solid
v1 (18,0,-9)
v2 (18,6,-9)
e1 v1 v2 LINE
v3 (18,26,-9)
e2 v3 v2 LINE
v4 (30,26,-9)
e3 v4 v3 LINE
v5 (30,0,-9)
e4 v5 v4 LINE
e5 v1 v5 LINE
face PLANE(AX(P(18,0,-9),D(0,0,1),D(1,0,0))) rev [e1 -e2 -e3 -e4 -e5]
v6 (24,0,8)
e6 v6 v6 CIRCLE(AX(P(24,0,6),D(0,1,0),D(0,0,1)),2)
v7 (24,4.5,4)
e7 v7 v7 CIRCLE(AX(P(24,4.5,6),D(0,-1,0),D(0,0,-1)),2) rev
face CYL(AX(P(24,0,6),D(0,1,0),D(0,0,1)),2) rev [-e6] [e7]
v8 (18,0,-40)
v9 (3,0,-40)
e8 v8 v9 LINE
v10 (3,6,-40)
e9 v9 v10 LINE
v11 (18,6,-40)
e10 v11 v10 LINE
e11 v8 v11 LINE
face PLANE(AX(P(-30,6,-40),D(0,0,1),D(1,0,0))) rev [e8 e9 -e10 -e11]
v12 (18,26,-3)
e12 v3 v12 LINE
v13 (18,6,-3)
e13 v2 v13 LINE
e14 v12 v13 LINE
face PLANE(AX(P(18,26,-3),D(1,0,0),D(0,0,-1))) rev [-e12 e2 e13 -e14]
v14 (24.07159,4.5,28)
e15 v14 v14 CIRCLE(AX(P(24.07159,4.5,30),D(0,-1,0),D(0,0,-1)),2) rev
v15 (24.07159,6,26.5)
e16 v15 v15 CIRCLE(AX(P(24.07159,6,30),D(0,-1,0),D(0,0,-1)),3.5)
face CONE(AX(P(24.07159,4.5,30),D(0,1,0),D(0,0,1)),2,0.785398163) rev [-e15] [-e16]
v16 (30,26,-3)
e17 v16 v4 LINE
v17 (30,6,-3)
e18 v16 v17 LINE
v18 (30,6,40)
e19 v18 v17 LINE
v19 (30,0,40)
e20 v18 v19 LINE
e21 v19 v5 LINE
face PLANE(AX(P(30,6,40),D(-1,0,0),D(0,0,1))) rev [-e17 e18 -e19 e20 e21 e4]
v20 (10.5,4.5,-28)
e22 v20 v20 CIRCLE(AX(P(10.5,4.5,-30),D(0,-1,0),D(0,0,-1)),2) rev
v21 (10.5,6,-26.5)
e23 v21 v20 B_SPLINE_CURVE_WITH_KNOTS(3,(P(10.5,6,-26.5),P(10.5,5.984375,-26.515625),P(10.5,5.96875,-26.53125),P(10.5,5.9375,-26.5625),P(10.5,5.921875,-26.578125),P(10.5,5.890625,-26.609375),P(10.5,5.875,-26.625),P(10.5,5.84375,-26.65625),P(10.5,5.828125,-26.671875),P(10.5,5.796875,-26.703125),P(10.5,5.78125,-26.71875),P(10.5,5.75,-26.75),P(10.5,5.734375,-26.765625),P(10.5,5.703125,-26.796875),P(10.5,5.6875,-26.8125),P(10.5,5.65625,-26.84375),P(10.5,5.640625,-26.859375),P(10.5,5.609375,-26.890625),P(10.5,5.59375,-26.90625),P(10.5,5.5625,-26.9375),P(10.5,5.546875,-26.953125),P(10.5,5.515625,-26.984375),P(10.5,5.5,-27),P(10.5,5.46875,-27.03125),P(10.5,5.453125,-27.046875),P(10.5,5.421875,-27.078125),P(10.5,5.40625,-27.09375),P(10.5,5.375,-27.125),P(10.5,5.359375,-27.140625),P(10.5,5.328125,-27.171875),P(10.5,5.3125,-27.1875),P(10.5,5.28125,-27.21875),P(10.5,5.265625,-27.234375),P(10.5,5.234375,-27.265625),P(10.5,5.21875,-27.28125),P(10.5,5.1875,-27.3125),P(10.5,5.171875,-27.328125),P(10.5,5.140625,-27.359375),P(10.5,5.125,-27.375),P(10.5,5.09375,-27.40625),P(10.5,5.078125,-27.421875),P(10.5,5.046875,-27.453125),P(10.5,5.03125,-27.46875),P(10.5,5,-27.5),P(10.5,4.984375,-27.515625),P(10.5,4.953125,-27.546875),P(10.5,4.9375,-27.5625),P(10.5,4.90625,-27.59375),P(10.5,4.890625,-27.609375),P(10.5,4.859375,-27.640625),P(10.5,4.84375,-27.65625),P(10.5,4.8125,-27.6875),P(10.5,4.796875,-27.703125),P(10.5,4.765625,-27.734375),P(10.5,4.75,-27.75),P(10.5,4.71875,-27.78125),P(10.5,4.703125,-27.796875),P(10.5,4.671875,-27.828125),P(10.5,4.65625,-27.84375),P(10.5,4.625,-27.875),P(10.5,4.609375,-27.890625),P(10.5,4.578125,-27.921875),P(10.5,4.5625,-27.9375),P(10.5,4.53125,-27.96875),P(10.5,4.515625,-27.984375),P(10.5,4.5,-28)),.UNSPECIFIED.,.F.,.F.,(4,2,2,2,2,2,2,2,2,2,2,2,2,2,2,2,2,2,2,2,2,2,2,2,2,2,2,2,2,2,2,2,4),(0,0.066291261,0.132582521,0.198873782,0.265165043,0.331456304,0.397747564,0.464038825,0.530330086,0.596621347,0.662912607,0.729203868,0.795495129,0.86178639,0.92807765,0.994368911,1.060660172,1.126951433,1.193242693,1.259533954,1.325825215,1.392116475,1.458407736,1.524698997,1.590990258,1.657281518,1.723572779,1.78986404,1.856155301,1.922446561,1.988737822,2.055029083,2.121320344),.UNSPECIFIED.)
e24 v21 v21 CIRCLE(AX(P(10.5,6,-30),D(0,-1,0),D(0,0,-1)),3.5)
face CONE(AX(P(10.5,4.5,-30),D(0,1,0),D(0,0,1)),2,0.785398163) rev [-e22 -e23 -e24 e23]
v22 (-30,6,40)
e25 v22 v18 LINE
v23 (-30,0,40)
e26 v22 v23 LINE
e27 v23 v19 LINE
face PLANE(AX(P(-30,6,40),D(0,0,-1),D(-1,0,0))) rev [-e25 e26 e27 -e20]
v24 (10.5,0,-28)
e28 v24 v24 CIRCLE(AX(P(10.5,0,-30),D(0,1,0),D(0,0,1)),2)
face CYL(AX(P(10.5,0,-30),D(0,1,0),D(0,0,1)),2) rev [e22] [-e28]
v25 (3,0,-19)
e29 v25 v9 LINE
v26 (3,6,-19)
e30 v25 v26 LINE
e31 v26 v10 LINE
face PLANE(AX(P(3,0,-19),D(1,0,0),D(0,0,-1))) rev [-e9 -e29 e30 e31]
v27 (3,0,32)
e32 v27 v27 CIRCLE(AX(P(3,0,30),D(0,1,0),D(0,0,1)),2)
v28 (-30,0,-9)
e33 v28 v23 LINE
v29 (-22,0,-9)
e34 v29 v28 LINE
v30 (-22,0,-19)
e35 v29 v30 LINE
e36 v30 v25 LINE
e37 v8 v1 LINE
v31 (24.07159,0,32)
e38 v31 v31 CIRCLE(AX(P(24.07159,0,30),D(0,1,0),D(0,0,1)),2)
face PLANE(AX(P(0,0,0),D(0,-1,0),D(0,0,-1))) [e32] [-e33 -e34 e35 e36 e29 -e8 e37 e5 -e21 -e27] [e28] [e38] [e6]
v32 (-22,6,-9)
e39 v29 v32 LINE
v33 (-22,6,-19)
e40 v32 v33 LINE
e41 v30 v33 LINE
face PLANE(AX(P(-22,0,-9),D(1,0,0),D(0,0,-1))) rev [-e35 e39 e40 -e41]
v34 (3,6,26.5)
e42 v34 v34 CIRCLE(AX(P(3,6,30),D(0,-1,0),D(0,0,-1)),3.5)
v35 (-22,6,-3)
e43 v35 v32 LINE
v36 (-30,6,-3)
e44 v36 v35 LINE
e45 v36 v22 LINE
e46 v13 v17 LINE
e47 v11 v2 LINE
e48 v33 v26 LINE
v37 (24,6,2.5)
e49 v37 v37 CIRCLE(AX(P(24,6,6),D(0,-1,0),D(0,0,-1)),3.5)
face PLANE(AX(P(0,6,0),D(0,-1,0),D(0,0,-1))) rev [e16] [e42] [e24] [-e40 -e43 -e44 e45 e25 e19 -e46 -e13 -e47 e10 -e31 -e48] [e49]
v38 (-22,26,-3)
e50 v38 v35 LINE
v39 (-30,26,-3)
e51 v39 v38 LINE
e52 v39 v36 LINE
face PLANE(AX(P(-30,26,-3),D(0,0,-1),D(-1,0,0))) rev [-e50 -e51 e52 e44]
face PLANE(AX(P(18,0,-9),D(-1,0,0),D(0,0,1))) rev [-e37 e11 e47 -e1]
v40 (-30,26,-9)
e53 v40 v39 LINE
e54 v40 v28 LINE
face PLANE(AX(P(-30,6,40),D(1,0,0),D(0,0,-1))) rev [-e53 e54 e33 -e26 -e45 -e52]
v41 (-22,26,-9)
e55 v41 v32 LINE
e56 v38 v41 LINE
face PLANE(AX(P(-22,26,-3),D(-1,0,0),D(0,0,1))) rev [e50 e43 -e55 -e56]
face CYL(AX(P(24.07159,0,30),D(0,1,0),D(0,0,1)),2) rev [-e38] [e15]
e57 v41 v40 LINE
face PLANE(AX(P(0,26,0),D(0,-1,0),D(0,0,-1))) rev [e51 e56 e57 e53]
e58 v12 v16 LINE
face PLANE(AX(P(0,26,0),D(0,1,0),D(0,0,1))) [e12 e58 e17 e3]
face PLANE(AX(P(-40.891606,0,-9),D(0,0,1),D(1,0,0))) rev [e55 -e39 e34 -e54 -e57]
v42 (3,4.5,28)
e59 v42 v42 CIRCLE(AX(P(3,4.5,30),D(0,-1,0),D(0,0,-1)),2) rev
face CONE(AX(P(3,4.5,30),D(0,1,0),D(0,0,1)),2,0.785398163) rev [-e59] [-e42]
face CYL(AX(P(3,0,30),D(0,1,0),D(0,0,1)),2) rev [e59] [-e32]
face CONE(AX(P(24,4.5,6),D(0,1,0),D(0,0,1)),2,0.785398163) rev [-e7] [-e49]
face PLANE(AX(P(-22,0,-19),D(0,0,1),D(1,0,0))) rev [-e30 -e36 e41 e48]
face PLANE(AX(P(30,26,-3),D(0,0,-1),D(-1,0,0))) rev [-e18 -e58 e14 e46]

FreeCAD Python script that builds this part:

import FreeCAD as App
import Part
import Sketcher
from FreeCAD import Vector


def edges_at(feature, points):
    """Names of the edges that pass closest to the given points."""
    edges = feature.Shape.Edges
    near = lambda p: min(range(len(edges)), key=lambda i: edges[i].distToShape(Part.Vertex(*p))[0])
    return sorted({f"Edge{near(p) + 1}" for p in points})

doc = App.newDocument("Part")
body = doc.addObject("PartDesign::Body", "Body")

# Sketch on XZ plane
sketch1 = body.newObject("Sketcher::SketchObject", "Sketch")
sketch1.AttachmentSupport = (doc.getObject("XZ_Plane"), [""])
sketch1.MapMode = "FlatFace"
sketch1.addGeometry(Part.LineSegment(Vector(-30, -40, 0), Vector(-30, 40, 0)), False)
sketch1.addGeometry(Part.LineSegment(Vector(-30, 40, 0), Vector(30, 40, 0)), False)
sketch1.addGeometry(Part.LineSegment(Vector(30, 40, 0), Vector(30, -40, 0)), False)
sketch1.addGeometry(Part.LineSegment(Vector(30, -40, 0), Vector(-30, -40, 0)), False)
sketch1.addConstraint(Sketcher.Constraint("Coincident", 0, 2, 1, 1))
sketch1.addConstraint(Sketcher.Constraint("Coincident", 1, 2, 2, 1))
sketch1.addConstraint(Sketcher.Constraint("Coincident", 2, 2, 3, 1))
sketch1.addConstraint(Sketcher.Constraint("Coincident", 3, 2, 0, 1))
sketch1.addConstraint(Sketcher.Constraint("Vertical", 0))
sketch1.addConstraint(Sketcher.Constraint("Horizontal", 1))
sketch1.addConstraint(Sketcher.Constraint("Vertical", 2))
sketch1.addConstraint(Sketcher.Constraint("Horizontal", 3))
sketch1.addConstraint(Sketcher.Constraint("Symmetric", 0, 2, 2, 2, -1, 1))
sketch1.addConstraint(Sketcher.Constraint("DistanceX", 1, 1, 1, 2, 60.0))
sketch1.addConstraint(Sketcher.Constraint("DistanceY", 0, 1, 0, 2, 80.0))
pad1 = body.newObject("PartDesign::Pad", "Pad")
pad1.Profile = sketch1
pad1.Length = 6
pad1.Reversed = True

# Sketch on XZ plane
sketch2 = body.newObject("Sketcher::SketchObject", "Sketch001")
sketch2.AttachmentSupport = (doc.getObject("XZ_Plane"), [""])
sketch2.MapMode = "FlatFace"
sketch2.AttachmentOffset = App.Placement(Vector(0, 0, -6), App.Rotation())
sketch2.addGeometry(Part.Circle(Vector(3, 30, 0), Vector(0, 0, 1), 2), False)
sketch2.addGeometry(Part.Circle(Vector(24.1, 30, 0), Vector(0, 0, 1), 2), False)
sketch2.addGeometry(Part.Circle(Vector(24, 6, 0), Vector(0, 0, 1), 2), False)
sketch2.addGeometry(Part.Circle(Vector(10.5, -30, 0), Vector(0, 0, 1), 2), False)
sketch2.addGeometry(Part.LineSegment(Vector(-40.9, -9, 0), Vector(-22, -9, 0)), False)
sketch2.addGeometry(Part.LineSegment(Vector(-22, -9, 0), Vector(-22, -19, 0)), False)
sketch2.addGeometry(Part.LineSegment(Vector(-22, -19, 0), Vector(3, -19, 0)), False)
sketch2.addGeometry(Part.LineSegment(Vector(3, -19, 0), Vector(3, -40, 0)), False)
sketch2.addGeometry(Part.LineSegment(Vector(3, -40, 0), Vector(18, -40, 0)), False)
sketch2.addGeometry(Part.LineSegment(Vector(18, -40, 0), Vector(18, -9, 0)), False)
sketch2.addGeometry(Part.LineSegment(Vector(18, -9, 0), Vector(35.9, -9, 0)), False)
sketch2.addGeometry(Part.LineSegment(Vector(35.9, -9, 0), Vector(35.9, -57.3, 0)), False)
sketch2.addGeometry(Part.LineSegment(Vector(35.9, -57.3, 0), Vector(-40.9, -57.3, 0)), False)
sketch2.addGeometry(Part.LineSegment(Vector(-40.9, -57.3, 0), Vector(-40.9, -9, 0)), False)
sketch2.addConstraint(Sketcher.Constraint("Coincident", 4, 2, 5, 1))
sketch2.addConstraint(Sketcher.Constraint("Coincident", 5, 2, 6, 1))
sketch2.addConstraint(Sketcher.Constraint("Coincident", 6, 2, 7, 1))
sketch2.addConstraint(Sketcher.Constraint("Coincident", 7, 2, 8, 1))
sketch2.addConstraint(Sketcher.Constraint("Coincident", 8, 2, 9, 1))
sketch2.addConstraint(Sketcher.Constraint("Coincident", 9, 2, 10, 1))
sketch2.addConstraint(Sketcher.Constraint("Coincident", 10, 2, 11, 1))
sketch2.addConstraint(Sketcher.Constraint("Coincident", 11, 2, 12, 1))
sketch2.addConstraint(Sketcher.Constraint("Coincident", 12, 2, 13, 1))
sketch2.addConstraint(Sketcher.Constraint("Coincident", 13, 2, 4, 1))
sketch2.addConstraint(Sketcher.Constraint("Horizontal", 4))
sketch2.addConstraint(Sketcher.Constraint("Vertical", 5))
sketch2.addConstraint(Sketcher.Constraint("Horizontal", 6))
sketch2.addConstraint(Sketcher.Constraint("Vertical", 7))
sketch2.addConstraint(Sketcher.Constraint("Horizontal", 8))
sketch2.addConstraint(Sketcher.Constraint("Vertical", 9))
sketch2.addConstraint(Sketcher.Constraint("Horizontal", 10))
sketch2.addConstraint(Sketcher.Constraint("Vertical", 11))
sketch2.addConstraint(Sketcher.Constraint("Horizontal", 12))
sketch2.addConstraint(Sketcher.Constraint("Vertical", 13))
sketch2.addConstraint(Sketcher.Constraint("Equal", 0, 1))
sketch2.addConstraint(Sketcher.Constraint("Equal", 1, 2))
sketch2.addConstraint(Sketcher.Constraint("Equal", 2, 3))
sketch2.addConstraint(Sketcher.Constraint("Horizontal", 0, 3, 1, 3))
sketch2.addConstraint(Sketcher.Constraint("Horizontal", 4, 2, 9, 2))
sketch2.addConstraint(Sketcher.Constraint("Vertical", 0, 3, 6, 2))
sketch2.addConstraint(Sketcher.Constraint("Diameter", 0, 4.0))
sketch2.addConstraint(Sketcher.Constraint("DistanceX", 6, 1, 6, 2, 25.0))
sketch2.addConstraint(Sketcher.Constraint("DistanceX", 8, 1, 8, 2, 15.0))
sketch2.addConstraint(Sketcher.Constraint("DistanceY", 5, 2, 5, 1, 10.0))
sketch2.addConstraint(Sketcher.Constraint("DistanceY", 7, 2, 7, 1, 21.0))
sketch2.addConstraint(Sketcher.Constraint("DistanceX", -1, 1, 0, 3, 3.0))
sketch2.addConstraint(Sketcher.Constraint("DistanceY", -1, 1, 0, 3, 30.0))
sketch2.addConstraint(Sketcher.Constraint("DistanceX", -1, 1, 2, 3, 24.0))
sketch2.addConstraint(Sketcher.Constraint("DistanceY", -1, 1, 2, 3, 6.0))
sketch2.addConstraint(Sketcher.Constraint("DistanceY", 3, 3, -1, 1, 30.0))
sketch2.addConstraint(Sketcher.Constraint("DistanceY", 4, 2, -1, 1, 9.0))
sketch2.addConstraint(Sketcher.Constraint("DistanceX", -1, 1, 3, 3, 10.5))
sketch2.addConstraint(Sketcher.Constraint("DistanceX", 10, 1, 10, 2, 17.945142))
sketch2.addConstraint(Sketcher.Constraint("DistanceX", 4, 1, 4, 2, 18.891606))
sketch2.addConstraint(Sketcher.Constraint("DistanceY", 11, 2, 11, 1, 48.336723))
sketch2.addConstraint(Sketcher.Constraint("DistanceX", -1, 1, 1, 3, 24.07159))
pocket1 = body.newObject("PartDesign::Pocket", "Pocket")
pocket1.Profile = sketch2
pocket1.Type = "ThroughAll"
pocket1.Reversed = True

# Sketch on XZ plane
sketch3 = body.newObject("Sketcher::SketchObject", "Sketch002")
sketch3.AttachmentSupport = (doc.getObject("XZ_Plane"), [""])
sketch3.MapMode = "FlatFace"
sketch3.AttachmentOffset = App.Placement(Vector(0, 0, -6), App.Rotation())
sketch3.addGeometry(Part.LineSegment(Vector(18, -9, 0), Vector(18, -3, 0)), False)
sketch3.addGeometry(Part.LineSegment(Vector(18, -3, 0), Vector(30, -3, 0)), False)
sketch3.addGeometry(Part.LineSegment(Vector(30, -3, 0), Vector(30, -9, 0)), False)
sketch3.addGeometry(Part.LineSegment(Vector(30, -9, 0), Vector(18, -9, 0)), False)
sketch3.addGeometry(Part.LineSegment(Vector(-30, -9, 0), Vector(-30, -3, 0)), False)
sketch3.addGeometry(Part.LineSegment(Vector(-30, -3, 0), Vector(-22, -3, 0)), False)
sketch3.addGeometry(Part.LineSegment(Vector(-22, -3, 0), Vector(-22, -9, 0)), False)
sketch3.addGeometry(Part.LineSegment(Vector(-22, -9, 0), Vector(-30, -9, 0)), False)
sketch3.addConstraint(Sketcher.Constraint("Coincident", 0, 2, 1, 1))
sketch3.addConstraint(Sketcher.Constraint("Coincident", 1, 2, 2, 1))
sketch3.addConstraint(Sketcher.Constraint("Coincident", 2, 2, 3, 1))
sketch3.addConstraint(Sketcher.Constraint("Coincident", 3, 2, 0, 1))
sketch3.addConstraint(Sketcher.Constraint("Coincident", 4, 2, 5, 1))
sketch3.addConstraint(Sketcher.Constraint("Coincident", 5, 2, 6, 1))
sketch3.addConstraint(Sketcher.Constraint("Coincident", 6, 2, 7, 1))
sketch3.addConstraint(Sketcher.Constraint("Coincident", 7, 2, 4, 1))
sketch3.addConstraint(Sketcher.Constraint("Vertical", 0))
sketch3.addConstraint(Sketcher.Constraint("Horizontal", 1))
sketch3.addConstraint(Sketcher.Constraint("Vertical", 2))
sketch3.addConstraint(Sketcher.Constraint("Horizontal", 3))
sketch3.addConstraint(Sketcher.Constraint("Vertical", 4))
sketch3.addConstraint(Sketcher.Constraint("Horizontal", 5))
sketch3.addConstraint(Sketcher.Constraint("Vertical", 6))
sketch3.addConstraint(Sketcher.Constraint("Horizontal", 7))
sketch3.addConstraint(Sketcher.Constraint("Symmetric", 1, 2, 4, 2, -2))
sketch3.addConstraint(Sketcher.Constraint("Horizontal", 3, 2, 6, 2))
sketch3.addConstraint(Sketcher.Constraint("DistanceX", 1, 1, 1, 2, 12.0))
sketch3.addConstraint(Sketcher.Constraint("DistanceX", 5, 1, 5, 2, 8.0))
sketch3.addConstraint(Sketcher.Constraint("DistanceY", 0, 1, 0, 2, 6.0))
sketch3.addConstraint(Sketcher.Constraint("DistanceX", -1, 1, 0, 2, 18.0))
sketch3.addConstraint(Sketcher.Constraint("DistanceY", 0, 2, -1, 1, 3.0))
pad2 = body.newObject("PartDesign::Pad", "Pad001")
pad2.Profile = sketch3
pad2.Length = 20
pad2.Reversed = True
doc.recompute()

chamfer = body.newObject("PartDesign::Chamfer", "Chamfer")
chamfer.Base = (pad2, edges_at(pad2, [
    (3, 6, 28),
    (24.072, 6, 28),
    (24, 6, 4),
    (10.5, 6, -32),
]))
chamfer.Size = 1.5

doc.recompute()
